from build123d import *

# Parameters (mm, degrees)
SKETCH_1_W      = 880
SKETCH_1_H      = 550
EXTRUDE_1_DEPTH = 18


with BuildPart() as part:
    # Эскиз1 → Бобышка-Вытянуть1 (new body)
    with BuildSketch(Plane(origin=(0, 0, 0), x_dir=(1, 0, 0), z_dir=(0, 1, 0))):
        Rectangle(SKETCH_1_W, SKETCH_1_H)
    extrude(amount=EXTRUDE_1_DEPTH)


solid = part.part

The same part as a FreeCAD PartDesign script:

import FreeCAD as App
import Part
import Sketcher

V = App.Vector


def add_polygon(sketch, points):
    """Adds a closed chain of lines whose ends are joined by coincident constraints."""
    first, n = sketch.GeometryCount, len(points)
    for a, b in zip(points, points[1:] + points[:1]):
        sketch.addGeometry(Part.LineSegment(App.Vector(*a, 0), App.Vector(*b, 0)), False)
    for i in range(n):
        sketch.addConstraint(Sketcher.Constraint("Coincident", first + i, 2, first + (i + 1) % n, 1))

doc = App.newDocument("Part")
params = doc.addObject("Spreadsheet::Sheet", "Params")
for row, (alias, value) in enumerate([
    ("sketch1_width", "880 mm"),
    ("sketch1_height", "550 mm"),
    ("pad1_length", "18 mm"),
], start=1):
    params.set(f"A{row}", alias)
    params.set(f"B{row}", "=" + value)
    params.setAlias(f"B{row}", alias)

body = doc.addObject("PartDesign::Body", "Body")

# Sketch on XZ plane
sketch1 = doc.addObject("Sketcher::SketchObject", "Sketch")
body.addObject(sketch1)
sketch1.AttachmentSupport = (doc.XZ_Plane, [""])
sketch1.MapMode = "FlatFace"
add_polygon(sketch1, [(-440, -275), (-440, 275), (440, 275), (440, -275)])  # lines 0-3
sketch1.addConstraint(Sketcher.Constraint("Vertical", 0))
sketch1.addConstraint(Sketcher.Constraint("Horizontal", 1))
sketch1.addConstraint(Sketcher.Constraint("Vertical", 2))
sketch1.addConstraint(Sketcher.Constraint("Horizontal", 3))
sketch1.addConstraint(Sketcher.Constraint("Symmetric", 0, 2, 2, 2, -1, 1))
sketch1.addConstraint(Sketcher.Constraint("DistanceX", 1, 1, 1, 2, 880.0))
sketch1.addConstraint(Sketcher.Constraint("DistanceY", 0, 1, 0, 2, 550.0))
sketch1.setExpression("Constraints[9]", "Params.sketch1_width")
sketch1.setExpression("Constraints[10]", "Params.sketch1_height")
pad1 = doc.addObject("PartDesign::Pad", "Pad")
body.addObject(pad1)
pad1.Profile = sketch1
pad1.setExpression("Length", "Params.pad1_length")
pad1.Reversed = True

doc.recompute()
